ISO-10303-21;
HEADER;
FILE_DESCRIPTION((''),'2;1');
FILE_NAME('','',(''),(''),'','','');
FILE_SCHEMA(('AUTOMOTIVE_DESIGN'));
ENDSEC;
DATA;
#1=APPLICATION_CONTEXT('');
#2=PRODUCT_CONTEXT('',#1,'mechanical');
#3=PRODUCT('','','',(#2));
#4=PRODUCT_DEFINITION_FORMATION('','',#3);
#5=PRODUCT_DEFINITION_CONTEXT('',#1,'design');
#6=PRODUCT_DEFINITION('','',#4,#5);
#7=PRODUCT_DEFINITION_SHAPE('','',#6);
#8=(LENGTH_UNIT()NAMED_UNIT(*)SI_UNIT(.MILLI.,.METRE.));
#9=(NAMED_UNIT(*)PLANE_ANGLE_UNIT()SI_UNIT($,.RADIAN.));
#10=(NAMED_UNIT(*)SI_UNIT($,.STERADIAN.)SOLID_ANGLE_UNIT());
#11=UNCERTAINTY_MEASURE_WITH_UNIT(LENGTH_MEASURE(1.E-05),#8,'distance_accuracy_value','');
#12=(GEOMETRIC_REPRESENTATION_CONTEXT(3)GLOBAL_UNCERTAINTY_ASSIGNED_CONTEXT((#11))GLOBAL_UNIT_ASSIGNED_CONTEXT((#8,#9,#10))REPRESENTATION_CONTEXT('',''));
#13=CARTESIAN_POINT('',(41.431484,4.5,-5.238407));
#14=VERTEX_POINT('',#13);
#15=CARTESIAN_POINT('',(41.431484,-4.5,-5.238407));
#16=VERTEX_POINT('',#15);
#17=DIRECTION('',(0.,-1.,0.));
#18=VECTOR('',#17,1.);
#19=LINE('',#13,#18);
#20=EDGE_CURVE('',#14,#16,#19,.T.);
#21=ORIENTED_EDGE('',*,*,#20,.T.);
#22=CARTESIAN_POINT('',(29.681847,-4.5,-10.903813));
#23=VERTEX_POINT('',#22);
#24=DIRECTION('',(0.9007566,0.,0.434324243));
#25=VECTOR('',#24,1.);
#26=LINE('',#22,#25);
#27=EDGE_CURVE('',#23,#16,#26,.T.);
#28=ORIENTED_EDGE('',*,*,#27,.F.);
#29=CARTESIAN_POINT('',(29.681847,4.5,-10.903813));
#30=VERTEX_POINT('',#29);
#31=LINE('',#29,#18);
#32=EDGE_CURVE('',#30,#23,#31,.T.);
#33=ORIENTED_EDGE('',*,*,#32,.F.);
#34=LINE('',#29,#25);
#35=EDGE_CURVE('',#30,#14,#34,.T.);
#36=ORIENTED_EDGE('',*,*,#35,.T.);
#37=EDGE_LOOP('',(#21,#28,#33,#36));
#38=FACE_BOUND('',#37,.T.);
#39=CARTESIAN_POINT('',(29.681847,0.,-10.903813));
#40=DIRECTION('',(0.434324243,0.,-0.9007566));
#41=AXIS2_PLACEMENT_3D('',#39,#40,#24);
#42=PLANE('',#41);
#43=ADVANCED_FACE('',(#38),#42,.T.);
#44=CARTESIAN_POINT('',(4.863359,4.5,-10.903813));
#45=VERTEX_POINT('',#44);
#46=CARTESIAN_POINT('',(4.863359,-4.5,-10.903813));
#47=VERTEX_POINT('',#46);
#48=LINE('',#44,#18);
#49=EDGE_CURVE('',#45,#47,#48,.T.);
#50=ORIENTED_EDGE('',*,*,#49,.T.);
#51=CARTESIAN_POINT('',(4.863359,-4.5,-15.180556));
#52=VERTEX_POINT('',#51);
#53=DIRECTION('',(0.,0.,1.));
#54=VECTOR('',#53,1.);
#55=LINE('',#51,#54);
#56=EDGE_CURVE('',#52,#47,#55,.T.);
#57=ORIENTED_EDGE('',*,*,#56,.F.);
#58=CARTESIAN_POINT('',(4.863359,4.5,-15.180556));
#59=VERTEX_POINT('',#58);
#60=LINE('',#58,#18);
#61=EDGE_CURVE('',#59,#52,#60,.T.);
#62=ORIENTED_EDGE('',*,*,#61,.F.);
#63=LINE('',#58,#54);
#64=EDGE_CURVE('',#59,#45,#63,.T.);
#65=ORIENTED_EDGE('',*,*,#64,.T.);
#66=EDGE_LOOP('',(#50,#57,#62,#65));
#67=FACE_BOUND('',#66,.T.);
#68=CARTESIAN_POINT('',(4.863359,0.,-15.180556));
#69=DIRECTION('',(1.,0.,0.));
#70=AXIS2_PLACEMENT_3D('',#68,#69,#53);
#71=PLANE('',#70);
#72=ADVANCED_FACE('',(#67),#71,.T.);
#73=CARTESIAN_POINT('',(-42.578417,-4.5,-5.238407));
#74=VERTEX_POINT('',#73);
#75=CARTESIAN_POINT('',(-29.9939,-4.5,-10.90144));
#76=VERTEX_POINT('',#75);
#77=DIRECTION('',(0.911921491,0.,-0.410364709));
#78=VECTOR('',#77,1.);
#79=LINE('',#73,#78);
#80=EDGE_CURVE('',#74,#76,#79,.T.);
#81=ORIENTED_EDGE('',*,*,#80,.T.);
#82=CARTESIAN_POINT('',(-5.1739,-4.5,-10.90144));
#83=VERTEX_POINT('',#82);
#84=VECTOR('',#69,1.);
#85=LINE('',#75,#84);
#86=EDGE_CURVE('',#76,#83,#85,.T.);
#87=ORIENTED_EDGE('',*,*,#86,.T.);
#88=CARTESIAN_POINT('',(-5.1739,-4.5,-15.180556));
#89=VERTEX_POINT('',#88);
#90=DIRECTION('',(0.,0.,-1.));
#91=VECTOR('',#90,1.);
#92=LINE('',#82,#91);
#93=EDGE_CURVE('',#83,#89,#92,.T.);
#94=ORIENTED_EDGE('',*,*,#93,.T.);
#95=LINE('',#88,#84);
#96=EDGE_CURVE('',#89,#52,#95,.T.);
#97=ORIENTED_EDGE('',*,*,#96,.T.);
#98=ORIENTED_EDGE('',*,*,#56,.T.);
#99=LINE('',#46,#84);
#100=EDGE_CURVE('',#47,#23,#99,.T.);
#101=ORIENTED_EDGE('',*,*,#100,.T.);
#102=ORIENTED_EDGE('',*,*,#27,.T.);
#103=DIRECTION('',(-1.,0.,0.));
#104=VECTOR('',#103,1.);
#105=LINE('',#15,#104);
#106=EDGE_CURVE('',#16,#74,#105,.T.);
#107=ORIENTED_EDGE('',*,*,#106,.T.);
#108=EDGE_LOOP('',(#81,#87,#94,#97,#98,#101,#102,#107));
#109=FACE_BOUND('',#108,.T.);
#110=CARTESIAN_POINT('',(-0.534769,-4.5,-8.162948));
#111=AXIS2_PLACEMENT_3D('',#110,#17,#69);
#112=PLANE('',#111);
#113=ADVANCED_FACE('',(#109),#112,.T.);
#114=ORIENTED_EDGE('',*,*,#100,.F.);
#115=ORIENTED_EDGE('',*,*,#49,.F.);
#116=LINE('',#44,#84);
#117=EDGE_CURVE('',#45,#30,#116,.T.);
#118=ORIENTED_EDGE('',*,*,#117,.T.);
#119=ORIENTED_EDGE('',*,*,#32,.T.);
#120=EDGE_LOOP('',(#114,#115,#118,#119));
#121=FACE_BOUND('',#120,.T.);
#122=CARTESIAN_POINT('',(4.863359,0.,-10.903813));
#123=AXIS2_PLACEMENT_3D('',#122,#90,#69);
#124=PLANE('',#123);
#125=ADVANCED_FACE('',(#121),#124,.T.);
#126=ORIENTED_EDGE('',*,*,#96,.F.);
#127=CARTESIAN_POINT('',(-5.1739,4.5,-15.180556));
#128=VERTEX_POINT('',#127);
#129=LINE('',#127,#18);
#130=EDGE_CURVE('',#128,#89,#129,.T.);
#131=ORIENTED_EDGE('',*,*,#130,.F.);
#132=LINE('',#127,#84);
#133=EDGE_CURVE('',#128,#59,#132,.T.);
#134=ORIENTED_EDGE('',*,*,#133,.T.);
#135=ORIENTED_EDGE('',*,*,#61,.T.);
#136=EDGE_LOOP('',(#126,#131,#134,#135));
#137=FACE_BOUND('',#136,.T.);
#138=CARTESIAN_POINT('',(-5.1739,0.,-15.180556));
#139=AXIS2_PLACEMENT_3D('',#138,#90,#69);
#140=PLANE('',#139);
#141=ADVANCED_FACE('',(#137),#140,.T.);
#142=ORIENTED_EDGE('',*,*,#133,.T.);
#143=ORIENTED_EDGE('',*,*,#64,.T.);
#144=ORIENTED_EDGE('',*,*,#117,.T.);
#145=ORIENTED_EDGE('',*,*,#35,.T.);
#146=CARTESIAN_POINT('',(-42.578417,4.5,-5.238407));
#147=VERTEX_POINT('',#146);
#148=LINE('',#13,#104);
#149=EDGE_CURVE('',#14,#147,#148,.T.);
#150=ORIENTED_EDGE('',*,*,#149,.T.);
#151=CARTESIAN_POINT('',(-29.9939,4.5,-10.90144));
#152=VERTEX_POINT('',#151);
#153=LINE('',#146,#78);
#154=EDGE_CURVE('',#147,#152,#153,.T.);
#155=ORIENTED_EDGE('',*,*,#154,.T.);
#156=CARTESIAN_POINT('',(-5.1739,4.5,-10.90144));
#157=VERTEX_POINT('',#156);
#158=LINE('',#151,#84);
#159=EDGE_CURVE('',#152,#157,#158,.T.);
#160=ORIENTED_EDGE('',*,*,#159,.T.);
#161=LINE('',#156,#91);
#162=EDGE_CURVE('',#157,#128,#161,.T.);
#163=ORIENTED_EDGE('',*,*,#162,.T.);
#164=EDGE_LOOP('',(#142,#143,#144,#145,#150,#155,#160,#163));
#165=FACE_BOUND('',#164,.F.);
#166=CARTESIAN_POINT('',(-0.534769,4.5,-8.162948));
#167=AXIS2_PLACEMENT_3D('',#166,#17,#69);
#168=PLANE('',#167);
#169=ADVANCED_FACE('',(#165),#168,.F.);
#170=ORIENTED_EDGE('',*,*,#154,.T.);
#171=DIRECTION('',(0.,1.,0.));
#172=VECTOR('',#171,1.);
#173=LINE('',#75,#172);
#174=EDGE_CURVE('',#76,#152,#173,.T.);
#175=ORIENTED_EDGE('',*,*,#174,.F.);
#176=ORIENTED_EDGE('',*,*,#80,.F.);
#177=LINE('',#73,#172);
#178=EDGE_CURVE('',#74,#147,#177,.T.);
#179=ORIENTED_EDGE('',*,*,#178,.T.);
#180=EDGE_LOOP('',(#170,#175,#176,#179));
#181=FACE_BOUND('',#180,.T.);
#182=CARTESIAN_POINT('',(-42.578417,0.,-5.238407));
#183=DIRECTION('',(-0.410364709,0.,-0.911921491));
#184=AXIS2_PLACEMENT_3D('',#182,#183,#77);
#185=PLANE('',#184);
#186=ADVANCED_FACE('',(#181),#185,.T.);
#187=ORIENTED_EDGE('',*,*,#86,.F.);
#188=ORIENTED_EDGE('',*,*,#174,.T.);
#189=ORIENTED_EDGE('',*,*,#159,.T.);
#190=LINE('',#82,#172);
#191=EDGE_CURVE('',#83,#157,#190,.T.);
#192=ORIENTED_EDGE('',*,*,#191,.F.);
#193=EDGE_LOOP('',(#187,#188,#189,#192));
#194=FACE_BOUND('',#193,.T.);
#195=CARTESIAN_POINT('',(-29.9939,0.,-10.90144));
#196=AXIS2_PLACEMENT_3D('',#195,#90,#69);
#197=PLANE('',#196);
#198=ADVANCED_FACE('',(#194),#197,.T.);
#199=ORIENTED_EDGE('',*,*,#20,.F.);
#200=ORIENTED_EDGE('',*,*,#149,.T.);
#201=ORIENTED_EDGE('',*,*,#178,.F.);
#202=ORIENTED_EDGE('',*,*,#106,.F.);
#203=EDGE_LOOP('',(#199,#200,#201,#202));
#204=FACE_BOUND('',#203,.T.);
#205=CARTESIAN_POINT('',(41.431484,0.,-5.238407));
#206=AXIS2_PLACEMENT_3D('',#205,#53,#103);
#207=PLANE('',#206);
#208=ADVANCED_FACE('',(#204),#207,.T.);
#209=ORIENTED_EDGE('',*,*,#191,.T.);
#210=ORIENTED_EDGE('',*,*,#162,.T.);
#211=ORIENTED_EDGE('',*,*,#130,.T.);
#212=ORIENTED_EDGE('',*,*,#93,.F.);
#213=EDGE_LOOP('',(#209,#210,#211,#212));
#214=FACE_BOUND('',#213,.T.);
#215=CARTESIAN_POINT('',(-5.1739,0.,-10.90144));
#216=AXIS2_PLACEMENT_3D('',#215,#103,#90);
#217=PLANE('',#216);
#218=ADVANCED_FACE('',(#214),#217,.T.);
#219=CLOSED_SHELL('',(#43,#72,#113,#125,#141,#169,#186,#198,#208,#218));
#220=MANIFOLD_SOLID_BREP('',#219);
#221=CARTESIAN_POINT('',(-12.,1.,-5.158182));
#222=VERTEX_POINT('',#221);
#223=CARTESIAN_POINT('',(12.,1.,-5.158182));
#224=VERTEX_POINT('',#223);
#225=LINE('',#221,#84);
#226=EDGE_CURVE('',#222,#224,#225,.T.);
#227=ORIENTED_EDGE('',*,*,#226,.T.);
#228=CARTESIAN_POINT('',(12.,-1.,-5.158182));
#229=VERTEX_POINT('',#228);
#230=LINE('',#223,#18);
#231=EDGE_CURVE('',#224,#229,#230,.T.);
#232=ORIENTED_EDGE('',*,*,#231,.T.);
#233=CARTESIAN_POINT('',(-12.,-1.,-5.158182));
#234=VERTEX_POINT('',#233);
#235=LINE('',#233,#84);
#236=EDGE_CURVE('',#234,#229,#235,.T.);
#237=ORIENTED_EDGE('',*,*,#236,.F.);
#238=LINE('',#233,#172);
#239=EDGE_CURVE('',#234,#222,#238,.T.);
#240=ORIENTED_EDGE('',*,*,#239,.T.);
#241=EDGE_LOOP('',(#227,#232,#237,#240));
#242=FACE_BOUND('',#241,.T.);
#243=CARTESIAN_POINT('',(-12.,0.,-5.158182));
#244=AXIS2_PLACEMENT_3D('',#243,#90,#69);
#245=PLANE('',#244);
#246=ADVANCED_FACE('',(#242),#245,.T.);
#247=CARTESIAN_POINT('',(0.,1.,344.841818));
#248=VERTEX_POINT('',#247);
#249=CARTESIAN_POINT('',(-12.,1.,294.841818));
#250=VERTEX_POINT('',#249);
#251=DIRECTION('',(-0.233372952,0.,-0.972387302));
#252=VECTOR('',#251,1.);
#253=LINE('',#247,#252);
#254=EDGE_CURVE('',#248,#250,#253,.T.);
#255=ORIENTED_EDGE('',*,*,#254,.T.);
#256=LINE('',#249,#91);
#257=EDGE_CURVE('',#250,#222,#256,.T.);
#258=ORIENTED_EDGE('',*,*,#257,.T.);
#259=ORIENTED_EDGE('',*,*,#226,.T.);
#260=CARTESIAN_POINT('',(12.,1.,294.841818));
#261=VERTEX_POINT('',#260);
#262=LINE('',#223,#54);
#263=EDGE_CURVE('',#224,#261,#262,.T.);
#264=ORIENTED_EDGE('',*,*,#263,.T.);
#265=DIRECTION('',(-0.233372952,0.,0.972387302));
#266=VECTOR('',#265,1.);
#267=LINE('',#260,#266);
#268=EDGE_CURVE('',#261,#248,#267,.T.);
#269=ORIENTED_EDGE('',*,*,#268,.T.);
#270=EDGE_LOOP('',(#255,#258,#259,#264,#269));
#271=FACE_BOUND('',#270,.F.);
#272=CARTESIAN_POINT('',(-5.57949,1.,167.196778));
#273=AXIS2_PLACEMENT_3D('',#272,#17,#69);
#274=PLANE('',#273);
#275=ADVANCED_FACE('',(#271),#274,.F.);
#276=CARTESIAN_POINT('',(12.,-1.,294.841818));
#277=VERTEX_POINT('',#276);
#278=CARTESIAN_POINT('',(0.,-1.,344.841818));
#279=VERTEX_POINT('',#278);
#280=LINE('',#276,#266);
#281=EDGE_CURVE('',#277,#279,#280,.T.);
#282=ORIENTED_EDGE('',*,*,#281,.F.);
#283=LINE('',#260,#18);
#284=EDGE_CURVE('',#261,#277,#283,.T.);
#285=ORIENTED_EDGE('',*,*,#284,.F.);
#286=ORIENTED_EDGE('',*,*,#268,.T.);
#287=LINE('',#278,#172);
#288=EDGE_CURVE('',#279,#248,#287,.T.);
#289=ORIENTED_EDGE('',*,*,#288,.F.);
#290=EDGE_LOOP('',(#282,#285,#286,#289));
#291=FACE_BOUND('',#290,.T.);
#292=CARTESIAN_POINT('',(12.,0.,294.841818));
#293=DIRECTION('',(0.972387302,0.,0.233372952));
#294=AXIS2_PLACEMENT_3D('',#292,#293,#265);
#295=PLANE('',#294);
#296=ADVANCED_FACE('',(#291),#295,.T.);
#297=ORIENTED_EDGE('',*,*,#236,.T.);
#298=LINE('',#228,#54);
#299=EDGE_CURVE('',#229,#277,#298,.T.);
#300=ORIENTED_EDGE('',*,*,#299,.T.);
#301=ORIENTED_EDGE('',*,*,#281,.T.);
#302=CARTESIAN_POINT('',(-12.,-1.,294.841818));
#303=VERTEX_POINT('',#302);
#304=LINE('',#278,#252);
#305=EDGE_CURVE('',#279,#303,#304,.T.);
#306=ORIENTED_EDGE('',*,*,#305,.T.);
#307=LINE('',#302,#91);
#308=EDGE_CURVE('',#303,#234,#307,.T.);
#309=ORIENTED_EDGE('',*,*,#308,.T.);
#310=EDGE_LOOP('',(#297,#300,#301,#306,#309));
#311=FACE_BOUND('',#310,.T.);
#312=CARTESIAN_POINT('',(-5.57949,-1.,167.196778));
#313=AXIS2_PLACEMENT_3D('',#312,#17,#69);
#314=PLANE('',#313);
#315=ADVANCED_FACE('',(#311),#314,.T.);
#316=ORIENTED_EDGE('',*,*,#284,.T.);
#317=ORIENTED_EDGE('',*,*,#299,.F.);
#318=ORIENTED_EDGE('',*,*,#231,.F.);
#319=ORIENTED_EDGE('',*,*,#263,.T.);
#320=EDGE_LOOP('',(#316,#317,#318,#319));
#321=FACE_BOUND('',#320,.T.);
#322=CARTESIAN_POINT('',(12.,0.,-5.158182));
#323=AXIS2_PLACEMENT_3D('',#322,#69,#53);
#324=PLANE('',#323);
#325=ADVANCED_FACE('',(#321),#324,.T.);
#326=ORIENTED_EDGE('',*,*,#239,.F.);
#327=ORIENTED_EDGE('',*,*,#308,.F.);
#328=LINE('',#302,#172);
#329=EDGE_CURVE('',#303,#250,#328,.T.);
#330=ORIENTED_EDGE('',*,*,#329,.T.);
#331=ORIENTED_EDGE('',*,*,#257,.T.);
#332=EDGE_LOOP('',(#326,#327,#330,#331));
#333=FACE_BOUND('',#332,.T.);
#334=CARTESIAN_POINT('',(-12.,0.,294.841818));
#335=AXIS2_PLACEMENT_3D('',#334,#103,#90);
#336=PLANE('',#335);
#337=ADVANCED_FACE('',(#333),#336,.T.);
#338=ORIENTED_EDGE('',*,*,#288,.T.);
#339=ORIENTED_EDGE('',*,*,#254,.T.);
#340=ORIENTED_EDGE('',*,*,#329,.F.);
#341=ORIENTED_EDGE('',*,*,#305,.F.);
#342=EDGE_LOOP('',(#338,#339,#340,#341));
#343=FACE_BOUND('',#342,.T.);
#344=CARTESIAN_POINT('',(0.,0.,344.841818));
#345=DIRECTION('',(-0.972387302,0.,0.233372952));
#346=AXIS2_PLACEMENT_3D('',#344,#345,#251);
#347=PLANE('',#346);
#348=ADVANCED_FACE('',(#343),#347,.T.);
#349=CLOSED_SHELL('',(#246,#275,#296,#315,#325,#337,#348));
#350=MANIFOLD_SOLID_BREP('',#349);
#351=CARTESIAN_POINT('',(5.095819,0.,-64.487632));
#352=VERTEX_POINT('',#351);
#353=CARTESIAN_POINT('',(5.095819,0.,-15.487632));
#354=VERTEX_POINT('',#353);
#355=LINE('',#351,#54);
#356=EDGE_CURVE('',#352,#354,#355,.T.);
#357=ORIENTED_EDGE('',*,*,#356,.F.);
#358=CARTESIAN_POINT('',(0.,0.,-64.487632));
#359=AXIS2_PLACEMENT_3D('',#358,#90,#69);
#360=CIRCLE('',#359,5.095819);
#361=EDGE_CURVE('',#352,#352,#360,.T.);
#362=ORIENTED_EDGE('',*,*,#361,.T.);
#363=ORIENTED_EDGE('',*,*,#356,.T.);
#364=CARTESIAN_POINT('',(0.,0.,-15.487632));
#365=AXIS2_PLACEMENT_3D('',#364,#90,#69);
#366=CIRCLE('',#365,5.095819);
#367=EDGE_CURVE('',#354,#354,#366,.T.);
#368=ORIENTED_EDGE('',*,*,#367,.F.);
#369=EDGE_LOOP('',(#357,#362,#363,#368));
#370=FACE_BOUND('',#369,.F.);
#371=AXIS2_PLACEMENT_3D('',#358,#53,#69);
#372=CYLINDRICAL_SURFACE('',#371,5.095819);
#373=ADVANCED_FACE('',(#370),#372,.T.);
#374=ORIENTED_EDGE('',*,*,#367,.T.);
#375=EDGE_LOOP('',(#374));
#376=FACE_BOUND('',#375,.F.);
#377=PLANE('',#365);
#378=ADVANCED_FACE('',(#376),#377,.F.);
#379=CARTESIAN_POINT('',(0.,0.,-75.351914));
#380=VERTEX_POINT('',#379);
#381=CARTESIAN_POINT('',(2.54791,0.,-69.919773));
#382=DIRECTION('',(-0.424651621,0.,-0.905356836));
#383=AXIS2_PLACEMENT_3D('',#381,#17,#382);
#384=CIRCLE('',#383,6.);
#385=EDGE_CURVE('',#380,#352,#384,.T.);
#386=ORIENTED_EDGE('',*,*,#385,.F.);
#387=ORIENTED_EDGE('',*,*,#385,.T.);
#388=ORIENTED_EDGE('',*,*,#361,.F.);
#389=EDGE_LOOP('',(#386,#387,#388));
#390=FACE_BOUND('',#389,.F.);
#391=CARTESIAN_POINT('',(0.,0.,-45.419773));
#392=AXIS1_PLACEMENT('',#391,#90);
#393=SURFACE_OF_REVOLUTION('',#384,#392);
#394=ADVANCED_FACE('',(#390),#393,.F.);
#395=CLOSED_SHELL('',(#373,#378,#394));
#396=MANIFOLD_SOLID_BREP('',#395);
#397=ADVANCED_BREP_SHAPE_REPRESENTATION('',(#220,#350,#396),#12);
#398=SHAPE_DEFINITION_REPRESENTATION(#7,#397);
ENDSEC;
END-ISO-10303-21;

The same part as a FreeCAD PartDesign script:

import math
import FreeCAD as App
import Part
import Sketcher
from FreeCAD import Vector

doc = App.newDocument("Part")
body = doc.addObject("PartDesign::Body", "Body")

# Sketch on XZ plane
sketch1 = body.newObject("Sketcher::SketchObject", "Sketch")
sketch1.AttachmentSupport = (doc.getObject("XZ_Plane"), [""])
sketch1.MapMode = "FlatFace"
sketch1.addGeometry([
    Part.ArcOfCircle(Part.Circle(Vector(3, -70, 0), Vector(0, 0, 1), 6), math.radians(-115), math.radians(65)),
    Part.LineSegment(Vector(5, -64, 0), Vector(5, -15, 0)),
    Part.LineSegment(Vector(5, -15, 0), Vector(0, -15, 0)),
    Part.LineSegment(Vector(0, -15, 0), Vector(0, -75, 0)),
], False)
sketch1.addConstraint([
    Sketcher.Constraint("Coincident", 0, 2, 1, 1),
    Sketcher.Constraint("Coincident", 1, 2, 2, 1),
    Sketcher.Constraint("Coincident", 2, 2, 3, 1),
    Sketcher.Constraint("Coincident", 3, 2, 0, 1),
    Sketcher.Constraint("Vertical", 1),
    Sketcher.Constraint("Horizontal", 2),
    Sketcher.Constraint("Vertical", 3),
    Sketcher.Constraint("PointOnObject", 2, 2, -2),
    Sketcher.Constraint("Radius", 0, 6.0),
    Sketcher.Constraint("DistanceY", 1, 1, 1, 2, 49.0),
    Sketcher.Constraint("DistanceX", 2, 2, 2, 1, 5.095819),
    Sketcher.Constraint("DistanceX", -1, 1, 0, 3, 2.54791),
    Sketcher.Constraint("DistanceY", 0, 3, -1, 1, 69.919773),
])
revolution = body.newObject("PartDesign::Revolution", "Revolution")
revolution.Profile = sketch1
revolution.ReferenceAxis = (sketch1, ["V_Axis"])
revolution.Angle = 360
body2 = doc.addObject("PartDesign::Body", "Body001")

# Sketch on XZ plane
sketch2 = body2.newObject("Sketcher::SketchObject", "Sketch001")
sketch2.AttachmentSupport = (doc.getObject("XZ_Plane001"), [""])
sketch2.MapMode = "FlatFace"
sketch2.addGeometry([
    Part.LineSegment(Vector(-5.2, -10.9, 0), Vector(-5.2, -15.2, 0)),  # 0
    Part.LineSegment(Vector(-5.2, -15.2, 0), Vector(4.9, -15.2, 0)),  # 1
    Part.LineSegment(Vector(4.9, -15.2, 0), Vector(4.9, -10.9, 0)),  # 2
    Part.LineSegment(Vector(4.9, -10.9, 0), Vector(29.7, -10.9, 0)),  # 3
    Part.LineSegment(Vector(29.7, -10.9, 0), Vector(41.4, -5.2, 0)),  # 4
    Part.LineSegment(Vector(41.4, -5.2, 0), Vector(-42.6, -5.2, 0)),  # 5
    Part.LineSegment(Vector(-42.6, -5.2, 0), Vector(-30, -10.9, 0)),  # 6
    Part.LineSegment(Vector(-30, -10.9, 0), Vector(-5.2, -10.9, 0)),  # 7
], False)
sketch2.addConstraint([
    Sketcher.Constraint("Coincident", 0, 2, 1, 1),
    Sketcher.Constraint("Coincident", 1, 2, 2, 1),
    Sketcher.Constraint("Coincident", 2, 2, 3, 1),
    Sketcher.Constraint("Coincident", 3, 2, 4, 1),
    Sketcher.Constraint("Coincident", 4, 2, 5, 1),
    Sketcher.Constraint("Coincident", 5, 2, 6, 1),
    Sketcher.Constraint("Coincident", 6, 2, 7, 1),
    Sketcher.Constraint("Coincident", 7, 2, 0, 1),
    Sketcher.Constraint("Vertical", 0),
    Sketcher.Constraint("Horizontal", 1),
    Sketcher.Constraint("Vertical", 2),
    Sketcher.Constraint("Horizontal", 3),
    Sketcher.Constraint("Horizontal", 5),
    Sketcher.Constraint("Horizontal", 7),
    Sketcher.Constraint("Distance", 6, 13.8),
    Sketcher.Constraint("DistanceX", 7, 1, 7, 2, 24.82),
    Sketcher.Constraint("DistanceX", 5, 2, 5, 1, 84.009901),
    Sketcher.Constraint("DistanceX", 1, 1, 1, 2, 10.037259),
    Sketcher.Constraint("DistanceX", 3, 1, 3, 2, 24.818489),
    Sketcher.Constraint("DistanceX", 0, 2, -1, 1, 5.1739),
    Sketcher.Constraint("DistanceY", 0, 2, 0, 1, 4.279116),
    Sketcher.Constraint("DistanceY", 2, 1, 2, 2, 4.276743),
    Sketcher.Constraint("DistanceY", 6, 2, -1, 1, 10.90144),
    Sketcher.Constraint("DistanceY", 1, 2, 4, 2, 9.942149),
])
pad1 = body2.newObject("PartDesign::Pad", "Pad")
pad1.Profile = sketch2
pad1.Type = "TwoLengths"
pad1.Length = 4.5
pad1.Length2 = 4.5
body3 = doc.addObject("PartDesign::Body", "Body002")

# Sketch on XZ plane
sketch3 = body3.newObject("Sketcher::SketchObject", "Sketch002")
sketch3.AttachmentSupport = (doc.getObject("XZ_Plane002"), [""])
sketch3.MapMode = "FlatFace"
sketch3.addGeometry([
    Part.LineSegment(Vector(-12, -5, 0), Vector(12, -5, 0)),  # 0
    Part.LineSegment(Vector(12, -5, 0), Vector(12, 295, 0)),  # 1
    Part.LineSegment(Vector(12, 295, 0), Vector(0, 345, 0)),  # 2
    Part.LineSegment(Vector(0, 345, 0), Vector(-12, 295, 0)),  # 3
    Part.LineSegment(Vector(-12, 295, 0), Vector(-12, -5, 0)),  # 4
], False)
sketch3.addConstraint([
    Sketcher.Constraint("Coincident", 0, 2, 1, 1),
    Sketcher.Constraint("Coincident", 1, 2, 2, 1),
    Sketcher.Constraint("Coincident", 2, 2, 3, 1),
    Sketcher.Constraint("Coincident", 3, 2, 4, 1),
    Sketcher.Constraint("Coincident", 4, 2, 0, 1),
    Sketcher.Constraint("Horizontal", 0),
    Sketcher.Constraint("Vertical", 1),
    Sketcher.Constraint("Vertical", 4),
    Sketcher.Constraint("Symmetric", 1, 2, 3, 2, -2),
    Sketcher.Constraint("PointOnObject", 2, 2, -2),
    Sketcher.Constraint("DistanceX", 0, 1, 0, 2, 24.0),
    Sketcher.Constraint("DistanceY", 1, 1, 1, 2, 300.0),
    Sketcher.Constraint("DistanceY", 1, 2, 2, 2, 50.0),
    Sketcher.Constraint("DistanceY", 0, 2, -1, 1, 5.158182),
])
pad2 = body3.newObject("PartDesign::Pad", "Pad001")
pad2.Profile = sketch3
pad2.Type = "TwoLengths"
pad2.Length = 1
pad2.Length2 = 1

doc.recompute()
